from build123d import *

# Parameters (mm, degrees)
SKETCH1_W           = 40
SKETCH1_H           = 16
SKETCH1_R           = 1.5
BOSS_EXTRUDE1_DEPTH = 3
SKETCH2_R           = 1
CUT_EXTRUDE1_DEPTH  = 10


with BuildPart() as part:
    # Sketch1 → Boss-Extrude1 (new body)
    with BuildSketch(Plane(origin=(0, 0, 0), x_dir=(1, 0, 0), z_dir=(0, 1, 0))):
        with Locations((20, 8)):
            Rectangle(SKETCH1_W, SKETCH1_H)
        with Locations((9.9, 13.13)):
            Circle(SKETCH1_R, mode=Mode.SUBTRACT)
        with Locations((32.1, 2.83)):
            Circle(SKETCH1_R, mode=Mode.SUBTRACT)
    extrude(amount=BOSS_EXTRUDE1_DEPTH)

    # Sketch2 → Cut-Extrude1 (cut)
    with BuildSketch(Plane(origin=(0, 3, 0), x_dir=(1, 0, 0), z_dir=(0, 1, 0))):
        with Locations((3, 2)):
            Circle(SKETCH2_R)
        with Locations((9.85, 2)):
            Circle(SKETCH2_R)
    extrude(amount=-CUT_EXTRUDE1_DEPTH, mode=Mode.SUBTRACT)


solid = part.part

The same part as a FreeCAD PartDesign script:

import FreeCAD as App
import Part
import Sketcher

V = App.Vector

doc = App.newDocument("Part")
body = doc.addObject("PartDesign::Body", "Body")

sketch1 = doc.addObject("Sketcher::SketchObject", "Sketch")
body.addObject(sketch1)
sketch1.AttachmentSupport = (doc.XZ_Plane, [""])
sketch1.MapMode = "FlatFace"
sketch1.addGeometry([
    Part.LineSegment(V(0, -16, 0), V(0, 0, 0)),
    Part.LineSegment(V(0, 0, 0), V(40, 0, 0)),
    Part.LineSegment(V(40, 0, 0), V(40, -16, 0)),
    Part.LineSegment(V(40, -16, 0), V(0, -16, 0)),
    Part.Circle(V(32.1, -2.8, 0), V(0, 0, 1), 1.5),
    Part.Circle(V(9.9, -13.1, 0), V(0, 0, 1), 1.5),
], False)
sketch1.addConstraint([
    Sketcher.Constraint("Coincident", 0, 2, 1, 1),
    Sketcher.Constraint("Coincident", 1, 2, 2, 1),
    Sketcher.Constraint("Coincident", 2, 2, 3, 1),
    Sketcher.Constraint("Coincident", 3, 2, 0, 1),
    Sketcher.Constraint("Vertical", 0),
    Sketcher.Constraint("Horizontal", 1),
    Sketcher.Constraint("Vertical", 2),
    Sketcher.Constraint("Horizontal", 3),
    Sketcher.Constraint("Coincident", 0, 2, -1, 1),
    Sketcher.Constraint("Equal", 4, 5),
    Sketcher.Constraint("Diameter", 4, 3.0),
    Sketcher.Constraint("DistanceX", 1, 1, 1, 2, 40.0),
    Sketcher.Constraint("DistanceY", 0, 1, 0, 2, 16.0),
    Sketcher.Constraint("DistanceX", -1, 1, 4, 3, 32.1),
    Sketcher.Constraint("DistanceX", -1, 1, 5, 3, 9.9),
    Sketcher.Constraint("DistanceY", 5, 3, 4, 3, 10.3),
    Sketcher.Constraint("DistanceY", 4, 3, -1, 1, 2.83),
])
pad1 = doc.addObject("PartDesign::Pad", "Pad")
body.addObject(pad1)
pad1.Profile = sketch1
pad1.Length = 3
pad1.Reversed = True

sketch2 = doc.addObject("Sketcher::SketchObject", "Sketch001")
body.addObject(sketch2)
sketch2.AttachmentSupport = (doc.XZ_Plane, [""])
sketch2.MapMode = "FlatFace"
sketch2.AttachmentOffset = App.Placement(V(0, 0, -3), App.Rotation())
sketch2.addGeometry([
    Part.Circle(V(3, -2, 0), V(0, 0, 1), 1),
    Part.Circle(V(9.8, -2, 0), V(0, 0, 1), 1),
], False)
sketch2.addConstraint([
    Sketcher.Constraint("Equal", 0, 1),
    Sketcher.Constraint("Horizontal", 0, 3, 1, 3),
    Sketcher.Constraint("Diameter", 0, 2.0),
    Sketcher.Constraint("DistanceX", -1, 1, 0, 3, 3.0),
    Sketcher.Constraint("DistanceY", 0, 3, -1, 1, 2.0),
    Sketcher.Constraint("DistanceX", -1, 1, 1, 3, 9.85),
])
pocket1 = doc.addObject("PartDesign::Pocket", "Pocket")
body.addObject(pocket1)
pocket1.Profile = sketch2
pocket1.Length = 10
pocket1.Reversed = True

doc.recompute()
